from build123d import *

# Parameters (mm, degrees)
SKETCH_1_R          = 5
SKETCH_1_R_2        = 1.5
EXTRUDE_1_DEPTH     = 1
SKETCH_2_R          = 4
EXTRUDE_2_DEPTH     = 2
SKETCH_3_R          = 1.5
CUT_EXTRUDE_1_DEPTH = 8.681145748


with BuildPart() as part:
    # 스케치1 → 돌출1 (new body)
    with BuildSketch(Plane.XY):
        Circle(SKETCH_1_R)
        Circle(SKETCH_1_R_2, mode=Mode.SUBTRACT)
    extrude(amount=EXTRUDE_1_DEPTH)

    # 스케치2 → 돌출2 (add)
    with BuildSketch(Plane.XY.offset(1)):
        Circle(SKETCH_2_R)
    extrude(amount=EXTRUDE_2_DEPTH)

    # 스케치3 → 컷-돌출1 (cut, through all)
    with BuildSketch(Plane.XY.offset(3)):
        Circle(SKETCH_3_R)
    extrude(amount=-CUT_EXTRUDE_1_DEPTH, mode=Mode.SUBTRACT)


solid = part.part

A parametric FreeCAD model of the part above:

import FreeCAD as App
import Part
import Sketcher
from FreeCAD import Vector
Q = App.Units.Quantity

doc = App.newDocument("Part")
body = doc.addObject("PartDesign::Body", "Body")

# Sketch on XY plane
sketch1 = body.newObject("Sketcher::SketchObject", "Sketch")
sketch1.AttachmentSupport = (doc.getObject("XY_Plane"), [""])
sketch1.MapMode = "FlatFace"
sketch1.addGeometry([
    Part.Circle(Vector(0, 0, 0), Vector(0, 0, 1), 5),
    Part.Circle(Vector(0, 0, 0), Vector(0, 0, 1), 1.5),
], False)
sketch1.addConstraint([
    Sketcher.Constraint("Coincident", 0, 3, -1, 1),
    Sketcher.Constraint("Coincident", 1, 3, -1, 1),
    Sketcher.Constraint("Diameter", 0, Q("10 mm")),
    Sketcher.Constraint("Diameter", 1, Q("3 mm")),
])
pad1 = body.newObject("PartDesign::Pad", "Pad")
pad1.Profile = sketch1
pad1.Length = 1

# Sketch on XY plane
sketch2 = body.newObject("Sketcher::SketchObject", "Sketch001")
sketch2.AttachmentSupport = (doc.getObject("XY_Plane"), [""])
sketch2.MapMode = "FlatFace"
sketch2.AttachmentOffset = App.Placement(Vector(0, 0, 1), App.Rotation())
sketch2.addGeometry(Part.Circle(Vector(0, 0, 0), Vector(0, 0, 1), 4), False)
sketch2.addConstraint([
    Sketcher.Constraint("Coincident", 0, 3, -1, 1),
    Sketcher.Constraint("Diameter", 0, Q("8 mm")),
])
pad2 = body.newObject("PartDesign::Pad", "Pad001")
pad2.Profile = sketch2
pad2.Length = 2

# Sketch on XY plane
sketch3 = body.newObject("Sketcher::SketchObject", "Sketch002")
sketch3.AttachmentSupport = (doc.getObject("XY_Plane"), [""])
sketch3.MapMode = "FlatFace"
sketch3.AttachmentOffset = App.Placement(Vector(0, 0, 3), App.Rotation())
sketch3.addGeometry(Part.Circle(Vector(0, 0, 0), Vector(0, 0, 1), 1.5), False)
sketch3.addConstraint([
    Sketcher.Constraint("Coincident", 0, 3, -1, 1),
    Sketcher.Constraint("Diameter", 0, Q("3 mm")),
])
pocket1 = body.newObject("PartDesign::Pocket", "Pocket")
pocket1.Profile = sketch3
pocket1.Type = "ThroughAll"

doc.recompute()
